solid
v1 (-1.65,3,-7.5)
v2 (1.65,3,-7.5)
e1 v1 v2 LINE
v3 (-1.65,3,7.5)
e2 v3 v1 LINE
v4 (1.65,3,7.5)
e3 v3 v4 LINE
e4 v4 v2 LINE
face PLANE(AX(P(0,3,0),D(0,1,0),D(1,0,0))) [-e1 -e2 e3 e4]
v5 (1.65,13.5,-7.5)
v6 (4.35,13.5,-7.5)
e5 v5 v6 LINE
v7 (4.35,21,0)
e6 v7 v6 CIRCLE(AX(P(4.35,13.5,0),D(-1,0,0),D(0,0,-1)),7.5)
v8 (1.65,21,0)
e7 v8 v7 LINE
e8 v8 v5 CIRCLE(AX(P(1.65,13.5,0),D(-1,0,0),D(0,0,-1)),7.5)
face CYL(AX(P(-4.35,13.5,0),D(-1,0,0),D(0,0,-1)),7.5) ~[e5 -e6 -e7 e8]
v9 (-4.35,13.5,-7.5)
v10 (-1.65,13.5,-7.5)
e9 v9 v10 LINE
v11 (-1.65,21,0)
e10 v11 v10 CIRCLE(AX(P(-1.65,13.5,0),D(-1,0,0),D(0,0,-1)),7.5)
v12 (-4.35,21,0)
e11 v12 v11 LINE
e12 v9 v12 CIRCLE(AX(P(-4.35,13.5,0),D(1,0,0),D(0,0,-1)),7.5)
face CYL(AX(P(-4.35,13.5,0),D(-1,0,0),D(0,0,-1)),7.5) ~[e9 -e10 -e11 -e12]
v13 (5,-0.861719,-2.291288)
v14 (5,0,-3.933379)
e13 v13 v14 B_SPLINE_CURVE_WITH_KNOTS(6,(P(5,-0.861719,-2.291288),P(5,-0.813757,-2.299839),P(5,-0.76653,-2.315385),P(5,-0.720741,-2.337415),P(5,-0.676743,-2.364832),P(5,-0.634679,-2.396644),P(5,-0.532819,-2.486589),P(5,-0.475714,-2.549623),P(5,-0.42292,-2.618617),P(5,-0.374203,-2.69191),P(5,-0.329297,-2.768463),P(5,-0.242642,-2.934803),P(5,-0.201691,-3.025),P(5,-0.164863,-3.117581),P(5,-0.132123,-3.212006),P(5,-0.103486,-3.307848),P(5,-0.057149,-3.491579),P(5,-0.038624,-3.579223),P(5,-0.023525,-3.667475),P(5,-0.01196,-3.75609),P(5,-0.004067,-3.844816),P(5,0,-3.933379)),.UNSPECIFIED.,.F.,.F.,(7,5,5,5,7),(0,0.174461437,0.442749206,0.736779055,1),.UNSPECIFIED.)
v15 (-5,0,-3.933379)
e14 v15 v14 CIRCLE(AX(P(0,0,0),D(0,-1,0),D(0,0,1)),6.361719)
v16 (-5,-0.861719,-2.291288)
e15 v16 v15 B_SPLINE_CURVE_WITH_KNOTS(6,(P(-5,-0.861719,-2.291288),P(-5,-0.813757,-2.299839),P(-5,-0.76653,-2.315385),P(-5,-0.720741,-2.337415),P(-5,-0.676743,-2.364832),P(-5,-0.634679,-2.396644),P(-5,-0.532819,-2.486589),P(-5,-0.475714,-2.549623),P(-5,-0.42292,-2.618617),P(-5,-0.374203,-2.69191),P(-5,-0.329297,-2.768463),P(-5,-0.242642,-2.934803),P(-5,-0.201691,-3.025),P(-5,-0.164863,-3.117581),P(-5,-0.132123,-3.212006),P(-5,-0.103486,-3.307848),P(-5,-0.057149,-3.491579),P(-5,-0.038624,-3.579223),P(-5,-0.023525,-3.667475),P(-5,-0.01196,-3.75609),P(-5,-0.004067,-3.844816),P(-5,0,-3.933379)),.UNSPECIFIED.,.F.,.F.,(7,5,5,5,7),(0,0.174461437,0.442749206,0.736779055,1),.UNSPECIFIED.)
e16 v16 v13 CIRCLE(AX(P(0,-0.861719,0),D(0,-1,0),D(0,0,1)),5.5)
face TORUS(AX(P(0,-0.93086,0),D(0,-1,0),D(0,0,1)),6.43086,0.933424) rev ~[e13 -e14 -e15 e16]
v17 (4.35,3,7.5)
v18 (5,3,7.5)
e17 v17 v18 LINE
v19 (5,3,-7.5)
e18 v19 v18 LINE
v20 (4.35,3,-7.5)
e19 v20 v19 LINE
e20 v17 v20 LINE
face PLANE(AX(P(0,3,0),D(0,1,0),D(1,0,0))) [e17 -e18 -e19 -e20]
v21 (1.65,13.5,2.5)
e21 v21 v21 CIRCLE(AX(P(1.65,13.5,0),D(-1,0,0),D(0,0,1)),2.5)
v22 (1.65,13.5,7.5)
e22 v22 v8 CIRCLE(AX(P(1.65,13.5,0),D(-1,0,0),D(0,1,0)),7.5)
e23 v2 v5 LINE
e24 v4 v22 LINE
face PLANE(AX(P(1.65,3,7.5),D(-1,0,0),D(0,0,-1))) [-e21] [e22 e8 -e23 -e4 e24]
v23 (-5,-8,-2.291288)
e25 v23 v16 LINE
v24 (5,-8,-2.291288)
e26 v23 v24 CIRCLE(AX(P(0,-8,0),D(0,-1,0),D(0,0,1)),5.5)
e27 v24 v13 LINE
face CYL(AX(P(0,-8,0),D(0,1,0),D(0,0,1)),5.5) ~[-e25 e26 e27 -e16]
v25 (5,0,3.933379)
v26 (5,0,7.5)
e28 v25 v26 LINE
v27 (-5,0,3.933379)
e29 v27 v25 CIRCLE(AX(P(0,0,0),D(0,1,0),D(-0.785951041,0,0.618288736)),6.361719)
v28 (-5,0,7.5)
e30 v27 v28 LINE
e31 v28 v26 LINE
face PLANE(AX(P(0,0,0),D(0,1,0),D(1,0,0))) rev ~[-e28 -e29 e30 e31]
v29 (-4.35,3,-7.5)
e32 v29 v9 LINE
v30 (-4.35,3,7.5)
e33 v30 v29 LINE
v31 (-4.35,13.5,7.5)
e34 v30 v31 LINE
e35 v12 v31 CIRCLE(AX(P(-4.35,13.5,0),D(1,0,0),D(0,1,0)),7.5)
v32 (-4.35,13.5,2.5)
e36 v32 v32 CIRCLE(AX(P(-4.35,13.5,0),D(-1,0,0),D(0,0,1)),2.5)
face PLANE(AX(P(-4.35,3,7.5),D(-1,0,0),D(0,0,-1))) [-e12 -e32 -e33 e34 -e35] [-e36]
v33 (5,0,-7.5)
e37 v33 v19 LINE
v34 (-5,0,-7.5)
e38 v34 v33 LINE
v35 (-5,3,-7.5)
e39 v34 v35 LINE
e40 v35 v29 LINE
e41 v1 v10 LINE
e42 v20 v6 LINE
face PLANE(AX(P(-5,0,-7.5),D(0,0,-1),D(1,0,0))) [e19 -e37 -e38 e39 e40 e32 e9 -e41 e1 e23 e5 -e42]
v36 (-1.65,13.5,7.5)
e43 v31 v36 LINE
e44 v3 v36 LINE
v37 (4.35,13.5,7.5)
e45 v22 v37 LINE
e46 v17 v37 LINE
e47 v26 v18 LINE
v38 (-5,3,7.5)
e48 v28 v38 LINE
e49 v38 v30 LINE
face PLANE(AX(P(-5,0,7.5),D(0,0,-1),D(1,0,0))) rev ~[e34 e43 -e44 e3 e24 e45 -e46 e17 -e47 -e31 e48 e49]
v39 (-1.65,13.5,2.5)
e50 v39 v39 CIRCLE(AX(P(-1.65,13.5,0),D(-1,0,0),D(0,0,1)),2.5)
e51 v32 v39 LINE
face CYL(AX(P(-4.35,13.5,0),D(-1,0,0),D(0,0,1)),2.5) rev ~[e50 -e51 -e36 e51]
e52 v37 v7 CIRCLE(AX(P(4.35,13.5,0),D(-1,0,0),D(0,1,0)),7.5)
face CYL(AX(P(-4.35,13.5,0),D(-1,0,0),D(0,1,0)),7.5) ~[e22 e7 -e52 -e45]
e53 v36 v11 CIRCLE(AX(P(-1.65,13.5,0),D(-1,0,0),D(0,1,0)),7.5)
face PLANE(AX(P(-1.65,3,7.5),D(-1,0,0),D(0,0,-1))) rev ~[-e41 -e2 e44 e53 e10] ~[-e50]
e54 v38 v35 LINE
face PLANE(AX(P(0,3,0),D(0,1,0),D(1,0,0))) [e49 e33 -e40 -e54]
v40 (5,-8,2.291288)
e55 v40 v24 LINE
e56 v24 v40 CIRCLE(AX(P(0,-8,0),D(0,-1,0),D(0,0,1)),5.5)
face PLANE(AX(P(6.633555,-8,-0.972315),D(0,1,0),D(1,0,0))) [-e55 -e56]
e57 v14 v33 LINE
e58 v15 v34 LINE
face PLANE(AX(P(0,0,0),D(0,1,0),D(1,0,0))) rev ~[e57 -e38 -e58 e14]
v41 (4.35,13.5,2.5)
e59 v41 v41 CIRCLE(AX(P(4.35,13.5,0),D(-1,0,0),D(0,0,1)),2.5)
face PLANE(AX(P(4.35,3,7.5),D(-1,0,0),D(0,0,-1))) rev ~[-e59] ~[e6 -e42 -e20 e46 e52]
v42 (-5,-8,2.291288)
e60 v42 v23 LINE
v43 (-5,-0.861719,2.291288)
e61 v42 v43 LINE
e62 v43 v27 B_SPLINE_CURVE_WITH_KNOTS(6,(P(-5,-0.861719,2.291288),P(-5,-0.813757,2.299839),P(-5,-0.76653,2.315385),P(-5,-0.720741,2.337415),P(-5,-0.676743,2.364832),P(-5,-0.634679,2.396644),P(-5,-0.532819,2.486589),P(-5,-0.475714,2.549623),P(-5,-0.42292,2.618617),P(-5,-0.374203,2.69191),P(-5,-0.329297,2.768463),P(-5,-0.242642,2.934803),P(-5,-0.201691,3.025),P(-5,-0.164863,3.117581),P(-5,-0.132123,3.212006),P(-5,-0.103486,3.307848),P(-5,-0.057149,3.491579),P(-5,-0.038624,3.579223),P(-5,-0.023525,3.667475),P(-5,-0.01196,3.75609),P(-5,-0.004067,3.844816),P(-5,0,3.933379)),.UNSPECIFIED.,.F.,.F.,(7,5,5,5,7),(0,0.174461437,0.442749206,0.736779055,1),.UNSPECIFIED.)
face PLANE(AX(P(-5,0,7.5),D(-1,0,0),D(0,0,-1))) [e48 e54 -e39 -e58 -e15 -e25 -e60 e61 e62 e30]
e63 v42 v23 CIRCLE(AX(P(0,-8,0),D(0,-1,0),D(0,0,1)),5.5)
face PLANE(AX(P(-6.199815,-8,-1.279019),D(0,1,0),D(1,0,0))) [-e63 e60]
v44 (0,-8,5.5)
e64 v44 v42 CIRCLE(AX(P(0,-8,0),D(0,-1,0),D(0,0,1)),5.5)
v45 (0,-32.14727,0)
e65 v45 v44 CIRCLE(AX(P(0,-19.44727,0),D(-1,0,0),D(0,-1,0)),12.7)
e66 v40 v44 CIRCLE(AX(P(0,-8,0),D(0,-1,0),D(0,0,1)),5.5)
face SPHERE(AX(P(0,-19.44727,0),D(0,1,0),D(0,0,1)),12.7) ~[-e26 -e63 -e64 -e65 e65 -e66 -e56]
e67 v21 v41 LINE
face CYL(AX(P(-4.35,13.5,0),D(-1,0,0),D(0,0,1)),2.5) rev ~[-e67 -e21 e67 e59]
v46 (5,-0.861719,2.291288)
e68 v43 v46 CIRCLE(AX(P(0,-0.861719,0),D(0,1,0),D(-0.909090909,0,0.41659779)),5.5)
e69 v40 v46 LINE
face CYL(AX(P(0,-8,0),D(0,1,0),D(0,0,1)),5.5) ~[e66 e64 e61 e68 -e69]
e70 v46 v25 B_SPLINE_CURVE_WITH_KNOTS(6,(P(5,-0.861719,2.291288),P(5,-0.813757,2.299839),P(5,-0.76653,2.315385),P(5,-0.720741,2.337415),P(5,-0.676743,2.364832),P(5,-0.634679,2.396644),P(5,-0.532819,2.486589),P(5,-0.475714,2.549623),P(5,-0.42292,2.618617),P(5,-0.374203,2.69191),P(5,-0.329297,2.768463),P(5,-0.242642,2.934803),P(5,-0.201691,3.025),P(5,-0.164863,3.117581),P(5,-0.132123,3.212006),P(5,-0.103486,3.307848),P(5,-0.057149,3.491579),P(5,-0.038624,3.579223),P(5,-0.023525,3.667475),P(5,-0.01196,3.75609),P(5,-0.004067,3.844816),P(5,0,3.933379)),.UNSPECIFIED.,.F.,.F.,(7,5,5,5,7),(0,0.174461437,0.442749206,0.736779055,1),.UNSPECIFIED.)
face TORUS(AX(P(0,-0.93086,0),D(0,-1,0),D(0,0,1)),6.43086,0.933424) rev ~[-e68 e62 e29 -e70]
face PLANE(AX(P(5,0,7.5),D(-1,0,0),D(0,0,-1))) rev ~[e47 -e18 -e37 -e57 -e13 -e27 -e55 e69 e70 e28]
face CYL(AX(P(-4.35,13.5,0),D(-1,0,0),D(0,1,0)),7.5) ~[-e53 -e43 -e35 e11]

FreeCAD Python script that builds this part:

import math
import FreeCAD as App
import Part
import Sketcher
from FreeCAD import Vector
Q = App.Units.Quantity


def add_polygon(sketch, points):
    """Adds a closed chain of lines whose ends are joined by coincident constraints."""
    first, n = sketch.GeometryCount, len(points)
    for a, b in zip(points, points[1:] + points[:1]):
        sketch.addGeometry(Part.LineSegment(App.Vector(*a, 0), App.Vector(*b, 0)), False)
    for i in range(n):
        sketch.addConstraint(Sketcher.Constraint("Coincident", first + i, 2, first + (i + 1) % n, 1))

doc = App.newDocument("Part")
body = doc.addObject("PartDesign::Body", "Body")

# Sketch on XY plane
sketch1 = body.newObject("Sketcher::SketchObject", "Sketch")
sketch1.AttachmentSupport = (doc.getObject("XY_Plane"), [""])
sketch1.MapMode = "FlatFace"
sketch1.addGeometry([
    Part.LineSegment(Vector(0, 0, 0), Vector(0, -32.14727, 0)),  # 0
    Part.ArcOfCircle(Part.Circle(Vector(0, -19.44727, 0), Vector(0, 0, 1), 12.7), math.radians(-90), math.radians(64.337397)),  # 1
    Part.LineSegment(Vector(5.5, -8, 0), Vector(5.5, -0.861719, 0)),  # 2
    Part.ArcOfCircle(Part.Circle(Vector(6.43086, -0.93086, 0), Vector(0, 0, 1), 0.933424), math.radians(94.247886), math.radians(175.752114)),  # 3
    Part.LineSegment(Vector(6.361719, 0, 0), Vector(0, 0, 0)),  # 4
], False)
sketch1.addConstraint([
    Sketcher.Constraint("Coincident", 0, 2, 1, 1),
    Sketcher.Constraint("Coincident", 1, 2, 2, 1),
    Sketcher.Constraint("Coincident", 2, 2, 3, 2),
    Sketcher.Constraint("Coincident", 3, 1, 4, 1),
    Sketcher.Constraint("Coincident", 4, 2, 0, 1),
    Sketcher.Constraint("Vertical", 0),
    Sketcher.Constraint("Vertical", 2),
    Sketcher.Constraint("Horizontal", 4),
    Sketcher.Constraint("Coincident", 4, 2, -1, 1),
    Sketcher.Constraint("PointOnObject", 1, 3, -2),
    Sketcher.Constraint("Radius", 1, Q("12.7 mm")),
    Sketcher.Constraint("DistanceY", 1, 2, -1, 1, Q("8 mm")),
    Sketcher.Constraint("DistanceX", -1, 1, 1, 2, Q("5.5 mm")),
    Sketcher.Constraint("Radius", 3, Q("0.933424 mm")),
    Sketcher.Constraint("DistanceX", 4, 2, 4, 1, Q("6.361719 mm")),
    Sketcher.Constraint("DistanceY", 2, 1, 2, 2, Q("7.138281 mm")),
])
revolution = body.newObject("PartDesign::Revolution", "Revolution")
revolution.Profile = sketch1
revolution.ReferenceAxis = (sketch1, ["V_Axis"])
revolution.Angle = 360

# Sketch on XZ plane
sketch2 = body.newObject("Sketcher::SketchObject", "Sketch001")
sketch2.AttachmentSupport = (doc.getObject("XZ_Plane"), [""])
sketch2.MapMode = "FlatFace"
add_polygon(sketch2, [(-5, -7.5), (-5, 7.5), (5, 7.5), (5, -7.5)])  # lines 0-3
sketch2.addConstraint([
    Sketcher.Constraint("Vertical", 0),
    Sketcher.Constraint("Horizontal", 1),
    Sketcher.Constraint("Vertical", 2),
    Sketcher.Constraint("Horizontal", 3),
    Sketcher.Constraint("Symmetric", 0, 2, 2, 2, -1, 1),
    Sketcher.Constraint("DistanceX", 1, 1, 1, 2, Q("10 mm")),
    Sketcher.Constraint("DistanceY", 0, 1, 0, 2, Q("15 mm")),
])
pad1 = body.newObject("PartDesign::Pad", "Pad")
pad1.Profile = sketch2
pad1.Length = 3
pad1.Reversed = True

# Sketch on XZ plane
sketch3 = body.newObject("Sketcher::SketchObject", "Sketch002")
sketch3.AttachmentSupport = (doc.getObject("XZ_Plane"), [""])
sketch3.MapMode = "FlatFace"
sketch3.AttachmentOffset = App.Placement(Vector(0, 0, -3), App.Rotation())
add_polygon(sketch3, [(-4.35, -7.5), (-4.35, 7.5), (-1.65, 7.5), (-1.65, -7.5)])  # lines 0-3
add_polygon(sketch3, [(1.65, -7.5), (1.65, 7.5), (4.35, 7.5), (4.35, -7.5)])  # lines 4-7
sketch3.addConstraint([
    Sketcher.Constraint("Vertical", 0),
    Sketcher.Constraint("Horizontal", 1),
    Sketcher.Constraint("Vertical", 2),
    Sketcher.Constraint("Horizontal", 3),
    Sketcher.Constraint("Vertical", 4),
    Sketcher.Constraint("Horizontal", 5),
    Sketcher.Constraint("Vertical", 6),
    Sketcher.Constraint("Horizontal", 7),
    Sketcher.Constraint("Symmetric", 2, 2, 4, 2, -1, 1),
    Sketcher.Constraint("Symmetric", 0, 2, 6, 2, -1, 1),
    Sketcher.Constraint("Horizontal", 1, 2, 4, 2),
    Sketcher.Constraint("DistanceY", 0, 1, 0, 2, Q("15 mm")),
    Sketcher.Constraint("DistanceX", 1, 1, 1, 2, Q("2.7 mm")),
    Sketcher.Constraint("DistanceX", 0, 2, 4, 2, Q("6 mm")),
])
pad2 = body.newObject("PartDesign::Pad", "Pad001")
pad2.Profile = sketch3
pad2.Length = 18
pad2.Reversed = True

# Sketch on YZ plane
sketch4 = body.newObject("Sketcher::SketchObject", "Sketch003")
sketch4.AttachmentSupport = (doc.getObject("YZ_Plane"), [""])
sketch4.MapMode = "FlatFace"
sketch4.AttachmentOffset = App.Placement(Vector(0, 0, -4.35), App.Rotation())
sketch4.addGeometry([
    Part.Circle(Vector(13.5, 0, 0), Vector(0, 0, 1), 2.5),  # 0
    Part.LineSegment(Vector(21, -7.5, 0), Vector(13.5, -7.5, 0)),  # 1
    Part.ArcOfCircle(Part.Circle(Vector(13.5, 0, 0), Vector(0, 0, 1), 7.5), math.radians(-90), math.radians(0)),  # 2
    Part.LineSegment(Vector(21, 0, 0), Vector(21, -7.5, 0)),  # 3
    Part.LineSegment(Vector(21, 7.5, 0), Vector(21, 0, 0)),  # 4
    Part.ArcOfCircle(Part.Circle(Vector(13.5, 0, 0), Vector(0, 0, 1), 7.5), math.radians(0), math.radians(90)),  # 5
    Part.LineSegment(Vector(13.5, 7.5, 0), Vector(21, 7.5, 0)),  # 6
], False)
sketch4.addConstraint([
    Sketcher.Constraint("Tangent", 1, 2, 2, 1),
    Sketcher.Constraint("Tangent", 2, 2, 3, 1),
    Sketcher.Constraint("Coincident", 3, 2, 1, 1),
    Sketcher.Constraint("Tangent", 4, 2, 5, 1),
    Sketcher.Constraint("Tangent", 5, 2, 6, 1),
    Sketcher.Constraint("Coincident", 6, 2, 4, 1),
    Sketcher.Constraint("Horizontal", 1),
    Sketcher.Constraint("Vertical", 3),
    Sketcher.Constraint("Vertical", 4),
    Sketcher.Constraint("Horizontal", 6),
    Sketcher.Constraint("Coincident", 2, 3, 0, 3),
    Sketcher.Constraint("Coincident", 5, 3, 0, 3),
    Sketcher.Constraint("Equal", 2, 5),
    Sketcher.Constraint("PointOnObject", 0, 3, -1),
    Sketcher.Constraint("Diameter", 0, Q("5 mm")),
    Sketcher.Constraint("Radius", 2, Q("7.5 mm")),
    Sketcher.Constraint("DistanceX", -1, 1, 2, 2, Q("21 mm")),
])
pocket1 = body.newObject("PartDesign::Pocket", "Pocket")
pocket1.Profile = sketch4
pocket1.Type = "ThroughAll"
pocket1.Reversed = True

# Sketch on XZ plane
sketch5 = body.newObject("Sketcher::SketchObject", "Sketch004")
sketch5.AttachmentSupport = (doc.getObject("XZ_Plane"), [""])
sketch5.MapMode = "FlatFace"
sketch5.AttachmentOffset = App.Placement(Vector(0, 0, -3), App.Rotation())
add_polygon(sketch5, [(5, -7.5), (5, 5.555369), (8.267109, 5.555369), (8.267109, -7.5)])  # lines 0-3
add_polygon(sketch5, [(-7.39963, -7.5), (-7.39963, 4.941962), (-5, 4.941962), (-5, -7.5)])  # lines 4-7
sketch5.addConstraint([
    Sketcher.Constraint("Vertical", 0),
    Sketcher.Constraint("Horizontal", 1),
    Sketcher.Constraint("Vertical", 2),
    Sketcher.Constraint("Horizontal", 3),
    Sketcher.Constraint("Vertical", 4),
    Sketcher.Constraint("Horizontal", 5),
    Sketcher.Constraint("Vertical", 6),
    Sketcher.Constraint("Horizontal", 7),
    Sketcher.Constraint("Symmetric", 3, 2, 6, 2, -2),
    Sketcher.Constraint("DistanceX", -1, 1, 0, 2, Q("5 mm")),
    Sketcher.Constraint("DistanceY", 2, 2, -1, 1, Q("7.5 mm")),
    Sketcher.Constraint("DistanceX", 1, 1, 1, 2, Q("3.267109 mm")),
    Sketcher.Constraint("DistanceX", 5, 1, 5, 2, Q("2.39963 mm")),
    Sketcher.Constraint("DistanceY", 0, 1, 0, 2, Q("13.055369 mm")),
    Sketcher.Constraint("DistanceY", 4, 1, 4, 2, Q("12.441962 mm")),
])
pocket2 = body.newObject("PartDesign::Pocket", "Pocket001")
pocket2.Profile = sketch5
pocket2.Length = 11
pocket2.Reversed = True

doc.recompute()
